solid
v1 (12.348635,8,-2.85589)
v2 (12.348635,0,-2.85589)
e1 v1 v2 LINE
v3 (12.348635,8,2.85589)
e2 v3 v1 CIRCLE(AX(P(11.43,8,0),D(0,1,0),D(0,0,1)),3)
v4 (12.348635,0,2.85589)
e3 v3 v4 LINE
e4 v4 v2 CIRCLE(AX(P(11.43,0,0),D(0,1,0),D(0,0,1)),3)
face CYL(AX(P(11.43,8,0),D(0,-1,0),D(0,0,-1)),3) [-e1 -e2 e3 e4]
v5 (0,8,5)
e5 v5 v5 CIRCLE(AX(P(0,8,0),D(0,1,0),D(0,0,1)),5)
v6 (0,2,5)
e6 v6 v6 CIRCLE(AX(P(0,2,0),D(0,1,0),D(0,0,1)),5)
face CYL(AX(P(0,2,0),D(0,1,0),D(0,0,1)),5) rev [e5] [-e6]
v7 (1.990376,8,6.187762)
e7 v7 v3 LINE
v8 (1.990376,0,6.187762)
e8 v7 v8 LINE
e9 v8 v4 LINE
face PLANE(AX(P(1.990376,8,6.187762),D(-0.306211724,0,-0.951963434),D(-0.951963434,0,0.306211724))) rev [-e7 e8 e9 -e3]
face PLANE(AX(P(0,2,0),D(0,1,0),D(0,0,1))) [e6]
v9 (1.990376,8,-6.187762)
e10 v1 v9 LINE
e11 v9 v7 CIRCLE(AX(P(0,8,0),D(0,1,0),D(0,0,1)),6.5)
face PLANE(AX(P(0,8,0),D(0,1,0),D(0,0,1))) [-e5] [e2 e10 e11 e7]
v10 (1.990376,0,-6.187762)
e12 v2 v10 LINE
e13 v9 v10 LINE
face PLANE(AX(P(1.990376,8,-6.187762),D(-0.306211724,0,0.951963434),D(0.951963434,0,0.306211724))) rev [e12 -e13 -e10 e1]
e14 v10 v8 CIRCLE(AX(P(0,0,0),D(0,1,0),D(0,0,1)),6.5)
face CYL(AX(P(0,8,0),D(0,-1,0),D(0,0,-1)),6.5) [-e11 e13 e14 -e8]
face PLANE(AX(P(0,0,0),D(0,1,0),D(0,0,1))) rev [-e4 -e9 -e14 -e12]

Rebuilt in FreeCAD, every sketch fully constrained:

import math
import FreeCAD as App
import Part
import Sketcher
from FreeCAD import Vector
Q = App.Units.Quantity

doc = App.newDocument("Part")
body = doc.addObject("PartDesign::Body", "Body")

# Sketch on XZ plane
sketch1 = doc.addObject("Sketcher::SketchObject", "Sketch")
body.addObject(sketch1)
sketch1.AttachmentSupport = (doc.XZ_Plane, [""])
sketch1.MapMode = "FlatFace"
sketch1.addGeometry([
    Part.ArcOfCircle(Part.Circle(Vector(0, 0, 0), Vector(0, 0, 1), 6.5), math.radians(72), math.radians(288)),
    Part.LineSegment(Vector(2, 6.2, 0), Vector(12.3, 2.9, 0)),
    Part.ArcOfCircle(Part.Circle(Vector(11.4, 0, 0), Vector(0, 0, 1), 3), math.radians(-72), math.radians(72)),
    Part.LineSegment(Vector(12.3, -2.9, 0), Vector(2, -6.2, 0)),
], False)
sketch1.addConstraint([
    Sketcher.Constraint("Tangent", 0, 1, 1, 1),
    Sketcher.Constraint("Tangent", 1, 2, 2, 2),
    Sketcher.Constraint("Tangent", 2, 1, 3, 1),
    Sketcher.Constraint("Tangent", 3, 2, 0, 2),
    Sketcher.Constraint("Coincident", 0, 3, -1, 1),
    Sketcher.Constraint("PointOnObject", 2, 3, -1),
    Sketcher.Constraint("Radius", 2, Q("3 mm")),
    Sketcher.Constraint("Radius", 0, Q("6.5 mm")),
    Sketcher.Constraint("DistanceX", -1, 1, 2, 3, Q("11.43 mm")),
])
pad1 = doc.addObject("PartDesign::Pad", "Pad")
body.addObject(pad1)
pad1.Profile = sketch1
pad1.Length = 8
pad1.Reversed = True

# Sketch on XZ plane
sketch2 = doc.addObject("Sketcher::SketchObject", "Sketch001")
body.addObject(sketch2)
sketch2.AttachmentSupport = (doc.XZ_Plane, [""])
sketch2.MapMode = "FlatFace"
sketch2.AttachmentOffset = App.Placement(Vector(0, 0, -8), App.Rotation())
sketch2.addGeometry(Part.Circle(Vector(0, 0, 0), Vector(0, 0, 1), 5), False)
sketch2.addConstraint([
    Sketcher.Constraint("Coincident", 0, 3, -1, 1),
    Sketcher.Constraint("Diameter", 0, Q("10 mm")),
])
pocket1 = doc.addObject("PartDesign::Pocket", "Pocket")
body.addObject(pocket1)
pocket1.Profile = sketch2
pocket1.Length = 6
pocket1.Reversed = True

doc.recompute()
